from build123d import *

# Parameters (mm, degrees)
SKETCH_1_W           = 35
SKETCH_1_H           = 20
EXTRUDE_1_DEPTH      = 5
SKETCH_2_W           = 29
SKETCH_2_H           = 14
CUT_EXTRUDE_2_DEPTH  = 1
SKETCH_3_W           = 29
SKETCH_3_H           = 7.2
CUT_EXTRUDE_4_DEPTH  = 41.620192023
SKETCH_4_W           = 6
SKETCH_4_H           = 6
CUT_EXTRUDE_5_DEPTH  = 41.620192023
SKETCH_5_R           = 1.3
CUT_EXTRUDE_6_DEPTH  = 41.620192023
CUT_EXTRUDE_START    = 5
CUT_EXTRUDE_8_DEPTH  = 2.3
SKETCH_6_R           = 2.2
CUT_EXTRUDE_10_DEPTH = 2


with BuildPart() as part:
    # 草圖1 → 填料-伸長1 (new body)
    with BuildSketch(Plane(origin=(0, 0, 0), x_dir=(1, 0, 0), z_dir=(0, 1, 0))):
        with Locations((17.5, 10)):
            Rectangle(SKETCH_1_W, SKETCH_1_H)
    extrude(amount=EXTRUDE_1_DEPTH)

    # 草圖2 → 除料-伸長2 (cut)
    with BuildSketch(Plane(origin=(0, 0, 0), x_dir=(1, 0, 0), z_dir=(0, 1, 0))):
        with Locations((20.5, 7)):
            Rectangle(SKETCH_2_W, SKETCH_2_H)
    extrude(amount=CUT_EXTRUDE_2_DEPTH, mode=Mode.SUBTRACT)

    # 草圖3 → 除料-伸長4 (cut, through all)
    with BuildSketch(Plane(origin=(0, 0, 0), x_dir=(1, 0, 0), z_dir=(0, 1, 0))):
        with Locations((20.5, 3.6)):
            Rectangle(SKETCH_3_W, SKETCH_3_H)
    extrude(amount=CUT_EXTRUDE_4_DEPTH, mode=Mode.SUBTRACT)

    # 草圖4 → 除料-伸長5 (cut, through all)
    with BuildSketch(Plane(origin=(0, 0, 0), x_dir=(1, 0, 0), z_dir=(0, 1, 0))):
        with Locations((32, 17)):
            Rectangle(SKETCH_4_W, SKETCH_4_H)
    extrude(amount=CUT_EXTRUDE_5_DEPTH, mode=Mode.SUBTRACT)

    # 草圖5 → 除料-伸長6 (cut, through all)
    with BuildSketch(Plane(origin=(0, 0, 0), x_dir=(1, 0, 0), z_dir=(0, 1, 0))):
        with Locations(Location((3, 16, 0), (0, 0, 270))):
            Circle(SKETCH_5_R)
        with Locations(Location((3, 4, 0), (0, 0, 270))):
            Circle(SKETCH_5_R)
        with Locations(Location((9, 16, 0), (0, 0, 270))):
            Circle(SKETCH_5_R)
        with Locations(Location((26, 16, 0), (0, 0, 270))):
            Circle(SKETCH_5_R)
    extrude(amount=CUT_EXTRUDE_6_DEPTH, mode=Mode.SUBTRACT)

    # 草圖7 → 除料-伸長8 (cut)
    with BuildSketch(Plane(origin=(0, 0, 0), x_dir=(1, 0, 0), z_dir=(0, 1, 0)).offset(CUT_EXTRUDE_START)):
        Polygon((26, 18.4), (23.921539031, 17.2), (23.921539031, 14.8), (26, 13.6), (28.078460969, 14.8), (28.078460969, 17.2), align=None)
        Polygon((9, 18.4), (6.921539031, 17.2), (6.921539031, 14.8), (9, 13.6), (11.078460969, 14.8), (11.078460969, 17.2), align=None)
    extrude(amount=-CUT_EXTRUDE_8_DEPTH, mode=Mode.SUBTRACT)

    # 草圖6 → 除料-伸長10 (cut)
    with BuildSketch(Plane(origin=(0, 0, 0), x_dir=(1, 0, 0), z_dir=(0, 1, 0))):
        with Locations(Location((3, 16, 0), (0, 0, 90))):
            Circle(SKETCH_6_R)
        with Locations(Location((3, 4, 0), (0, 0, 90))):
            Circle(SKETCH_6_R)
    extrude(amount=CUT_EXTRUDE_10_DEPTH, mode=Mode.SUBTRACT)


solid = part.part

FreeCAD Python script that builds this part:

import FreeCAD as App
import Part
import Sketcher
from FreeCAD import Vector
Q = App.Units.Quantity


def add_polygon(sketch, points):
    """Adds a closed chain of lines whose ends are joined by coincident constraints."""
    first, n = sketch.GeometryCount, len(points)
    for a, b in zip(points, points[1:] + points[:1]):
        sketch.addGeometry(Part.LineSegment(App.Vector(*a, 0), App.Vector(*b, 0)), False)
    for i in range(n):
        sketch.addConstraint(Sketcher.Constraint("Coincident", first + i, 2, first + (i + 1) % n, 1))

doc = App.newDocument("Part")
params = doc.addObject("Spreadsheet::Sheet", "Params")
for row, (alias, value) in enumerate([
    ("sketch1_width", "35 mm"),
    ("sketch1_height", "20 mm"),
    ("pad1_length", "5 mm"),
    ("sketch2_width", "29 mm"),
    ("sketch2_height", "14 mm"),
    ("pocket1_length", "1 mm"),
    ("sketch3_width", "29 mm"),
    ("sketch3_height", "7.2 mm"),
    ("sketch4_width", "6 mm"),
    ("sketch5_diameter", "2.6 mm"),
    ("sketch6_height", "2.4 mm"),
    ("sketch6_length", "2.4 mm"),
    ("pocket5_length", "2.3 mm"),
    ("sketch7_diameter", "4.4 mm"),
    ("pocket6_length", "2 mm"),
], start=1):
    params.set(f"A{row}", alias)
    params.set(f"B{row}", "=" + value)
    params.setAlias(f"B{row}", alias)

body = doc.addObject("PartDesign::Body", "Body")

# Sketch on XZ plane
sketch1 = body.newObject("Sketcher::SketchObject", "Sketch")
sketch1.AttachmentSupport = (doc.getObject("XZ_Plane"), [""])
sketch1.MapMode = "FlatFace"
add_polygon(sketch1, [(0, -20), (0, 0), (35, 0), (35, -20)])  # lines 0-3
sketch1.addConstraint(Sketcher.Constraint("Vertical", 0))
sketch1.addConstraint(Sketcher.Constraint("Horizontal", 1))
sketch1.addConstraint(Sketcher.Constraint("Vertical", 2))
sketch1.addConstraint(Sketcher.Constraint("Horizontal", 3))
sketch1.addConstraint(Sketcher.Constraint("Coincident", 0, 2, -1, 1))
sketch1.addConstraint(Sketcher.Constraint("DistanceX", 1, 1, 1, 2, Q("35 mm")))
sketch1.addConstraint(Sketcher.Constraint("DistanceY", 0, 1, 0, 2, Q("20 mm")))
sketch1.setExpression("Constraints[9]", "Params.sketch1_width")
sketch1.setExpression("Constraints[10]", "Params.sketch1_height")
pad1 = body.newObject("PartDesign::Pad", "Pad")
pad1.Profile = sketch1
pad1.setExpression("Length", "Params.pad1_length")
pad1.Reversed = True

# Sketch on XZ plane
sketch2 = body.newObject("Sketcher::SketchObject", "Sketch001")
sketch2.AttachmentSupport = (doc.getObject("XZ_Plane"), [""])
sketch2.MapMode = "FlatFace"
add_polygon(sketch2, [(6, -14), (6, 0), (35, 0), (35, -14)])  # lines 0-3
sketch2.addConstraint(Sketcher.Constraint("Vertical", 0))
sketch2.addConstraint(Sketcher.Constraint("Horizontal", 1))
sketch2.addConstraint(Sketcher.Constraint("Vertical", 2))
sketch2.addConstraint(Sketcher.Constraint("Horizontal", 3))
sketch2.addConstraint(Sketcher.Constraint("PointOnObject", 0, 2, -1))
sketch2.addConstraint(Sketcher.Constraint("DistanceX", 1, 1, 1, 2, Q("29 mm")))
sketch2.addConstraint(Sketcher.Constraint("DistanceY", 0, 1, 0, 2, Q("14 mm")))
sketch2.addConstraint(Sketcher.Constraint("DistanceX", -1, 1, 0, 2, Q("6 mm")))
sketch2.setExpression("Constraints[9]", "Params.sketch2_width")
sketch2.setExpression("Constraints[10]", "Params.sketch2_height")
pocket1 = body.newObject("PartDesign::Pocket", "Pocket")
pocket1.Profile = sketch2
pocket1.setExpression("Length", "Params.pocket1_length")

# Sketch on XZ plane
sketch3 = body.newObject("Sketcher::SketchObject", "Sketch002")
sketch3.AttachmentSupport = (doc.getObject("XZ_Plane"), [""])
sketch3.MapMode = "FlatFace"
add_polygon(sketch3, [(6, -7), (6, 0), (35, 0), (35, -7)])  # lines 0-3
sketch3.addConstraint(Sketcher.Constraint("Vertical", 0))
sketch3.addConstraint(Sketcher.Constraint("Horizontal", 1))
sketch3.addConstraint(Sketcher.Constraint("Vertical", 2))
sketch3.addConstraint(Sketcher.Constraint("Horizontal", 3))
sketch3.addConstraint(Sketcher.Constraint("PointOnObject", 0, 2, -1))
sketch3.addConstraint(Sketcher.Constraint("DistanceX", 1, 1, 1, 2, Q("29 mm")))
sketch3.addConstraint(Sketcher.Constraint("DistanceY", 0, 1, 0, 2, Q("7.2 mm")))
sketch3.addConstraint(Sketcher.Constraint("DistanceX", -1, 1, 0, 2, Q("6 mm")))
sketch3.setExpression("Constraints[9]", "Params.sketch3_width")
sketch3.setExpression("Constraints[10]", "Params.sketch3_height")
pocket2 = body.newObject("PartDesign::Pocket", "Pocket001")
pocket2.Profile = sketch3
pocket2.Type = "ThroughAll"

# Sketch on XZ plane
sketch4 = body.newObject("Sketcher::SketchObject", "Sketch003")
sketch4.AttachmentSupport = (doc.getObject("XZ_Plane"), [""])
sketch4.MapMode = "FlatFace"
add_polygon(sketch4, [(29, -20), (29, -14), (35, -14), (35, -20)])  # lines 0-3
sketch4.addConstraint(Sketcher.Constraint("Vertical", 0))
sketch4.addConstraint(Sketcher.Constraint("Horizontal", 1))
sketch4.addConstraint(Sketcher.Constraint("Vertical", 2))
sketch4.addConstraint(Sketcher.Constraint("Horizontal", 3))
sketch4.addConstraint(Sketcher.Constraint("Equal", 3, 0))
sketch4.addConstraint(Sketcher.Constraint("DistanceX", 1, 1, 1, 2, Q("6 mm")))
sketch4.addConstraint(Sketcher.Constraint("DistanceX", -1, 1, 0, 2, Q("29 mm")))
sketch4.addConstraint(Sketcher.Constraint("DistanceY", 0, 2, -1, 1, Q("14 mm")))
sketch4.setExpression("Constraints[9]", "Params.sketch4_width")
pocket3 = body.newObject("PartDesign::Pocket", "Pocket002")
pocket3.Profile = sketch4
pocket3.Type = "ThroughAll"

# Sketch on XZ plane
sketch5 = body.newObject("Sketcher::SketchObject", "Sketch004")
sketch5.AttachmentSupport = (doc.getObject("XZ_Plane"), [""])
sketch5.MapMode = "FlatFace"
sketch5.addGeometry(Part.Circle(Vector(3, -16, 0), Vector(0, 0, 1), 1.3), False)
sketch5.addGeometry(Part.Circle(Vector(3, -4, 0), Vector(0, 0, 1), 1.3), False)
sketch5.addGeometry(Part.Circle(Vector(9, -16, 0), Vector(0, 0, 1), 1.3), False)
sketch5.addGeometry(Part.Circle(Vector(26, -16, 0), Vector(0, 0, 1), 1.3), False)
sketch5.addConstraint(Sketcher.Constraint("Equal", 0, 1))
sketch5.addConstraint(Sketcher.Constraint("Equal", 1, 2))
sketch5.addConstraint(Sketcher.Constraint("Equal", 2, 3))
sketch5.addConstraint(Sketcher.Constraint("Horizontal", 0, 3, 2, 3))
sketch5.addConstraint(Sketcher.Constraint("Horizontal", 2, 3, 3, 3))
sketch5.addConstraint(Sketcher.Constraint("Vertical", 0, 3, 1, 3))
sketch5.addConstraint(Sketcher.Constraint("Diameter", 0, Q("2.6 mm")))
sketch5.addConstraint(Sketcher.Constraint("DistanceX", -1, 1, 0, 3, Q("3 mm")))
sketch5.addConstraint(Sketcher.Constraint("DistanceY", 0, 3, -1, 1, Q("16 mm")))
sketch5.addConstraint(Sketcher.Constraint("DistanceY", 1, 3, -1, 1, Q("4 mm")))
sketch5.addConstraint(Sketcher.Constraint("DistanceX", -1, 1, 2, 3, Q("9 mm")))
sketch5.addConstraint(Sketcher.Constraint("DistanceX", -1, 1, 3, 3, Q("26 mm")))
sketch5.setExpression("Constraints[6]", "Params.sketch5_diameter")
pocket4 = body.newObject("PartDesign::Pocket", "Pocket003")
pocket4.Profile = sketch5
pocket4.Type = "ThroughAll"

# Sketch on XZ plane
sketch6 = body.newObject("Sketcher::SketchObject", "Sketch005")
sketch6.AttachmentSupport = (doc.getObject("XZ_Plane"), [""])
sketch6.MapMode = "FlatFace"
sketch6.AttachmentOffset = App.Placement(Vector(0, 0, -5), App.Rotation())
add_polygon(sketch6, [(26, -18.4), (23.9, -17.2), (23.9, -14.8), (26, -13.6), (28.1, -14.8), (28.1, -17.2)])  # lines 0-5
add_polygon(sketch6, [(9, -18.4), (6.9, -17.2), (6.9, -14.8), (9, -13.6), (11.1, -14.8), (11.1, -17.2)])  # lines 6-11
sketch6.addConstraint(Sketcher.Constraint("Vertical", 1))
sketch6.addConstraint(Sketcher.Constraint("Vertical", 4))
sketch6.addConstraint(Sketcher.Constraint("Vertical", 7))
sketch6.addConstraint(Sketcher.Constraint("Vertical", 10))
sketch6.addConstraint(Sketcher.Constraint("Parallel", 0, 3))
sketch6.addConstraint(Sketcher.Constraint("Parallel", 2, 5))
sketch6.addConstraint(Sketcher.Constraint("Parallel", 3, 6))
sketch6.addConstraint(Sketcher.Constraint("Parallel", 5, 8))
sketch6.addConstraint(Sketcher.Constraint("Parallel", 6, 9))
sketch6.addConstraint(Sketcher.Constraint("Parallel", 8, 11))
sketch6.addConstraint(Sketcher.Constraint("Horizontal", 1, 2, 3, 2))
sketch6.addConstraint(Sketcher.Constraint("Horizontal", 0, 2, 4, 2))
sketch6.addConstraint(Sketcher.Constraint("Horizontal", 4, 2, 6, 2))
sketch6.addConstraint(Sketcher.Constraint("Horizontal", 3, 2, 7, 2))
sketch6.addConstraint(Sketcher.Constraint("Horizontal", 2, 2, 8, 2))
sketch6.addConstraint(Sketcher.Constraint("Horizontal", 7, 2, 9, 2))
sketch6.addConstraint(Sketcher.Constraint("Horizontal", 6, 2, 10, 2))
sketch6.addConstraint(Sketcher.Constraint("Vertical", 2, 2, 5, 2))
sketch6.addConstraint(Sketcher.Constraint("Angle", 0, Q("150 deg")))
sketch6.addConstraint(Sketcher.Constraint("DistanceY", 1, 1, 1, 2, Q("2.4 mm")))
sketch6.addConstraint(Sketcher.Constraint("DistanceX", -1, 1, 2, 2, Q("26 mm")))
sketch6.addConstraint(Sketcher.Constraint("DistanceX", -1, 1, 8, 2, Q("9 mm")))
sketch6.addConstraint(Sketcher.Constraint("Distance", 0, Q("2.4 mm")))
sketch6.addConstraint(Sketcher.Constraint("DistanceY", 0, 2, -1, 1, Q("17.2 mm")))
sketch6.setExpression("Constraints[31]", "Params.sketch6_height")
sketch6.setExpression("Constraints[34]", "Params.sketch6_length")
pocket5 = body.newObject("PartDesign::Pocket", "Pocket004")
pocket5.Profile = sketch6
pocket5.setExpression("Length", "Params.pocket5_length")
pocket5.Reversed = True

# Sketch on XZ plane
sketch7 = body.newObject("Sketcher::SketchObject", "Sketch006")
sketch7.AttachmentSupport = (doc.getObject("XZ_Plane"), [""])
sketch7.MapMode = "FlatFace"
sketch7.addGeometry(Part.Circle(Vector(3, -16, 0), Vector(0, 0, 1), 2.2), False)
sketch7.addGeometry(Part.Circle(Vector(3, -4, 0), Vector(0, 0, 1), 2.2), False)
sketch7.addConstraint(Sketcher.Constraint("Equal", 0, 1))
sketch7.addConstraint(Sketcher.Constraint("Vertical", 0, 3, 1, 3))
sketch7.addConstraint(Sketcher.Constraint("Diameter", 0, Q("4.4 mm")))
sketch7.addConstraint(Sketcher.Constraint("DistanceX", -1, 1, 0, 3, Q("3 mm")))
sketch7.addConstraint(Sketcher.Constraint("DistanceY", 0, 3, -1, 1, Q("16 mm")))
sketch7.addConstraint(Sketcher.Constraint("DistanceY", 1, 3, -1, 1, Q("4 mm")))
sketch7.setExpression("Constraints[2]", "Params.sketch7_diameter")
pocket6 = body.newObject("PartDesign::Pocket", "Pocket005")
pocket6.Profile = sketch7
pocket6.setExpression("Length", "Params.pocket6_length")

doc.recompute()
